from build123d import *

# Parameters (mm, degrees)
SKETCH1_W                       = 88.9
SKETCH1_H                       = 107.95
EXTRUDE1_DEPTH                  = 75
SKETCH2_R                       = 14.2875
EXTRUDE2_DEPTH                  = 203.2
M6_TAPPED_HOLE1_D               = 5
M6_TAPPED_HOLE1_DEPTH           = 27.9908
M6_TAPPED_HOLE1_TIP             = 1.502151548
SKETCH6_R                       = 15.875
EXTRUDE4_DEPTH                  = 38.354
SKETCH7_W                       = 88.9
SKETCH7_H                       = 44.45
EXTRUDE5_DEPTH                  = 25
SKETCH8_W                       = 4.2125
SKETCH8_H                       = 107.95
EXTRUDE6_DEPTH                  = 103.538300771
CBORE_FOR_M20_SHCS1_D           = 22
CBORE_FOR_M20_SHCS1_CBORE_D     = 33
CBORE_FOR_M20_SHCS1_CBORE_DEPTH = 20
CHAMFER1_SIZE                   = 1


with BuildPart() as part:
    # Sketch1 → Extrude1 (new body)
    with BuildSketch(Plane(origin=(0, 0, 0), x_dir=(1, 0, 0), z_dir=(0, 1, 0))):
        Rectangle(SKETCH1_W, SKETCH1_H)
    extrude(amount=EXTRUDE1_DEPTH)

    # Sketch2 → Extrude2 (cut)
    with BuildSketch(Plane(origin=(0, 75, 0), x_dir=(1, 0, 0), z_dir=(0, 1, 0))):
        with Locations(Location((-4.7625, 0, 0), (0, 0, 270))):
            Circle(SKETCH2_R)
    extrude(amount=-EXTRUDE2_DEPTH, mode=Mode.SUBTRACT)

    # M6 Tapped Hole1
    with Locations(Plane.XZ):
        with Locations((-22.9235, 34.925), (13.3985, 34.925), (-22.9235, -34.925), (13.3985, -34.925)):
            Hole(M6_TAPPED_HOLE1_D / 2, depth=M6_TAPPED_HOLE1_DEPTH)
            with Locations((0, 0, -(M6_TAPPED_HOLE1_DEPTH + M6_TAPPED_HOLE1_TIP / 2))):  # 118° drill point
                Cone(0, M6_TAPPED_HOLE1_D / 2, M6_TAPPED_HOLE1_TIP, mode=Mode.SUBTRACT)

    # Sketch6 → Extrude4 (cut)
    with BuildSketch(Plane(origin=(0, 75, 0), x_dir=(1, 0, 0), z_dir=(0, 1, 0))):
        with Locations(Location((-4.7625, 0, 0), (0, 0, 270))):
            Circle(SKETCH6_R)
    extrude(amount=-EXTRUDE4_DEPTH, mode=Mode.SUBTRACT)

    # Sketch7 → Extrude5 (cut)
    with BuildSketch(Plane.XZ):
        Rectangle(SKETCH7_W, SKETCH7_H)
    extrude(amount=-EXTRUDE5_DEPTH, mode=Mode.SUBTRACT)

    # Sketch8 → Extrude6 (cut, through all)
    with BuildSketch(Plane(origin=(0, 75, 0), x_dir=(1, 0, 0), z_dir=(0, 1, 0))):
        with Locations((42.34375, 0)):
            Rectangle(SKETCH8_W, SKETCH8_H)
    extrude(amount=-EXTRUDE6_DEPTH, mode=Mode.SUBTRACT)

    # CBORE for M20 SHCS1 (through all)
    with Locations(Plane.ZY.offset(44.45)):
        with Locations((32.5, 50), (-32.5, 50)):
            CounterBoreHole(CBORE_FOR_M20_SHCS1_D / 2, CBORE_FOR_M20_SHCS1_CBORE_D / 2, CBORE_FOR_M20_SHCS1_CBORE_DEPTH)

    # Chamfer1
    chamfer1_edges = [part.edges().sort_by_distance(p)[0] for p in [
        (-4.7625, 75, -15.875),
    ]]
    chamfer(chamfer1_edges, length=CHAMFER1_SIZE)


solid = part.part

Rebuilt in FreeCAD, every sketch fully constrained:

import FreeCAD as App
import Part
import Sketcher
from FreeCAD import Vector
Q = App.Units.Quantity


def edges_at(feature, points):
    """Names of the edges that pass closest to the given points."""
    edges = feature.Shape.Edges
    near = lambda p: min(range(len(edges)), key=lambda i: edges[i].distToShape(Part.Vertex(*p))[0])
    return sorted({f"Edge{near(p) + 1}" for p in points})

doc = App.newDocument("Part")
body = doc.addObject("PartDesign::Body", "Body")

sketch1 = body.newObject("Sketcher::SketchObject", "Sketch")
sketch1.AttachmentSupport = (doc.getObject("XZ_Plane"), [""])
sketch1.MapMode = "FlatFace"
sketch1.addGeometry([
    Part.LineSegment(Vector(-44, -54, 0), Vector(-44, 54, 0)),
    Part.LineSegment(Vector(-44, 54, 0), Vector(44, 54, 0)),
    Part.LineSegment(Vector(44, 54, 0), Vector(44, -54, 0)),
    Part.LineSegment(Vector(44, -54, 0), Vector(-44, -54, 0)),
], False)
sketch1.addConstraint([
    Sketcher.Constraint("Coincident", 0, 2, 1, 1),
    Sketcher.Constraint("Coincident", 1, 2, 2, 1),
    Sketcher.Constraint("Coincident", 2, 2, 3, 1),
    Sketcher.Constraint("Coincident", 3, 2, 0, 1),
    Sketcher.Constraint("Vertical", 0),
    Sketcher.Constraint("Horizontal", 1),
    Sketcher.Constraint("Vertical", 2),
    Sketcher.Constraint("Horizontal", 3),
    Sketcher.Constraint("Symmetric", 0, 2, 2, 2, -1, 1),
    Sketcher.Constraint("DistanceX", 1, 1, 1, 2, Q("3.5 in")),
    Sketcher.Constraint("DistanceY", 0, 1, 0, 2, Q("4.25 in")),
])
pad1 = body.newObject("PartDesign::Pad", "Pad")
pad1.Profile = sketch1
pad1.Length = 75
pad1.Reversed = True

sketch2 = body.newObject("Sketcher::SketchObject", "Sketch001")
sketch2.AttachmentSupport = (doc.getObject("XZ_Plane"), [""])
sketch2.MapMode = "FlatFace"
sketch2.AttachmentOffset = App.Placement(Vector(0, 0, -75), App.Rotation())
sketch2.addGeometry(Part.Circle(Vector(-5, 0, 0), Vector(0, 0, 1), 14), False)
sketch2.addConstraint([
    Sketcher.Constraint("PointOnObject", 0, 3, -1),
    Sketcher.Constraint("Diameter", 0, Q("1.125 in")),
    Sketcher.Constraint("DistanceX", 0, 3, -1, 1, Q("0.1875 in")),
])
pocket1 = body.newObject("PartDesign::Pocket", "Pocket")
pocket1.Profile = sketch2
pocket1.Length = Q("8 in")
pocket1.Reversed = True

sketch3 = body.newObject("Sketcher::SketchObject", "Sketch002")
sketch3.AttachmentSupport = (doc.getObject("XZ_Plane"), [""])
sketch3.MapMode = "FlatFace"
sketch3.addGeometry([
    Part.Circle(Vector(-22.9, 34.9, 0), Vector(0, 0, 1), 2.5),
    Part.Circle(Vector(13.4, 34.9, 0), Vector(0, 0, 1), 2.5),
    Part.Circle(Vector(-22.9, -34.9, 0), Vector(0, 0, 1), 2.5),
    Part.Circle(Vector(13.4, -34.9, 0), Vector(0, 0, 1), 2.5),
], False)
sketch3.addConstraint([
    Sketcher.Constraint("Equal", 0, 1),
    Sketcher.Constraint("Equal", 1, 2),
    Sketcher.Constraint("Equal", 2, 3),
    Sketcher.Constraint("Symmetric", 0, 3, 2, 3, -1),
    Sketcher.Constraint("Symmetric", 1, 3, 3, 3, -1),
    Sketcher.Constraint("Horizontal", 0, 3, 1, 3),
    Sketcher.Constraint("Diameter", 0, Q("5 mm")),
    Sketcher.Constraint("DistanceX", 0, 3, 1, 3, Q("1.43 in")),
    Sketcher.Constraint("DistanceY", 2, 3, 0, 3, Q("2.75 in")),
    Sketcher.Constraint("DistanceX", 0, 3, -1, 1, Q("0.9025 in")),
])
doc.recompute()
hole = body.newObject("PartDesign::Hole", "Hole")
hole.Profile = sketch3
hole.ThreadType = "None"
hole.Diameter = 5
hole.DepthType = "Dimension"
hole.Depth = Q("1.102 in")
hole.DrillPoint = "Angled"
hole.DrillPointAngle = 118

sketch4 = body.newObject("Sketcher::SketchObject", "Sketch003")
sketch4.AttachmentSupport = (doc.getObject("XZ_Plane"), [""])
sketch4.MapMode = "FlatFace"
sketch4.AttachmentOffset = App.Placement(Vector(0, 0, -75), App.Rotation())
sketch4.addGeometry(Part.Circle(Vector(-5, 0, 0), Vector(0, 0, 1), 16), False)
sketch4.addConstraint([
    Sketcher.Constraint("PointOnObject", 0, 3, -1),
    Sketcher.Constraint("Diameter", 0, Q("1.25 in")),
    Sketcher.Constraint("DistanceX", 0, 3, -1, 1, Q("0.1875 in")),
])
pocket2 = body.newObject("PartDesign::Pocket", "Pocket001")
pocket2.Profile = sketch4
pocket2.Length = Q("1.51 in")
pocket2.Reversed = True

sketch5 = body.newObject("Sketcher::SketchObject", "Sketch004")
sketch5.AttachmentSupport = (doc.getObject("XZ_Plane"), [""])
sketch5.MapMode = "FlatFace"
sketch5.addGeometry([
    Part.LineSegment(Vector(-44, 22, 0), Vector(-44, -22, 0)),
    Part.LineSegment(Vector(-44, -22, 0), Vector(44, -22, 0)),
    Part.LineSegment(Vector(44, -22, 0), Vector(44, 22, 0)),
    Part.LineSegment(Vector(44, 22, 0), Vector(-44, 22, 0)),
], False)
sketch5.addConstraint([
    Sketcher.Constraint("Coincident", 0, 2, 1, 1),
    Sketcher.Constraint("Coincident", 1, 2, 2, 1),
    Sketcher.Constraint("Coincident", 2, 2, 3, 1),
    Sketcher.Constraint("Coincident", 3, 2, 0, 1),
    Sketcher.Constraint("Vertical", 0),
    Sketcher.Constraint("Horizontal", 1),
    Sketcher.Constraint("Vertical", 2),
    Sketcher.Constraint("Horizontal", 3),
    Sketcher.Constraint("Symmetric", 0, 2, 2, 2, -1, 1),
    Sketcher.Constraint("DistanceX", 1, 1, 1, 2, Q("3.5 in")),
    Sketcher.Constraint("DistanceY", 0, 2, 0, 1, Q("1.75 in")),
])
pocket3 = body.newObject("PartDesign::Pocket", "Pocket002")
pocket3.Profile = sketch5
pocket3.Length = 25

sketch6 = body.newObject("Sketcher::SketchObject", "Sketch005")
sketch6.AttachmentSupport = (doc.getObject("XZ_Plane"), [""])
sketch6.MapMode = "FlatFace"
sketch6.AttachmentOffset = App.Placement(Vector(0, 0, -75), App.Rotation())
sketch6.addGeometry([
    Part.LineSegment(Vector(40.2, -54, 0), Vector(40.2, 54, 0)),
    Part.LineSegment(Vector(40.2, 54, 0), Vector(44.5, 54, 0)),
    Part.LineSegment(Vector(44.5, 54, 0), Vector(44.5, -54, 0)),
    Part.LineSegment(Vector(44.5, -54, 0), Vector(40.2, -54, 0)),
], False)
sketch6.addConstraint([
    Sketcher.Constraint("Coincident", 0, 2, 1, 1),
    Sketcher.Constraint("Coincident", 1, 2, 2, 1),
    Sketcher.Constraint("Coincident", 2, 2, 3, 1),
    Sketcher.Constraint("Coincident", 3, 2, 0, 1),
    Sketcher.Constraint("Vertical", 0),
    Sketcher.Constraint("Horizontal", 1),
    Sketcher.Constraint("Vertical", 2),
    Sketcher.Constraint("Horizontal", 3),
    Sketcher.Constraint("DistanceY", 0, 1, 0, 2, Q("4.25 in")),
    Sketcher.Constraint("DistanceX", -1, 1, 1, 2, Q("1.75 in")),
    Sketcher.Constraint("DistanceY", -1, 1, 0, 2, Q("2.125 in")),
    Sketcher.Constraint("DistanceX", 1, 1, 1, 2, Q("4.2125 mm")),
])
pocket4 = body.newObject("PartDesign::Pocket", "Pocket003")
pocket4.Profile = sketch6
pocket4.Type = "ThroughAll"
pocket4.Reversed = True

sketch7 = body.newObject("Sketcher::SketchObject", "Sketch006")
sketch7.AttachmentSupport = (doc.getObject("YZ_Plane"), [""])
sketch7.MapMode = "FlatFace"
sketch7.AttachmentOffset = App.Placement(Vector(0, 0, -1.75 * 25.4), App.Rotation())
sketch7.addGeometry([
    Part.Circle(Vector(50, 32, 0), Vector(0, 0, 1), 11),
    Part.Circle(Vector(50, -32, 0), Vector(0, 0, 1), 11),
], False)
sketch7.addConstraint([
    Sketcher.Constraint("Equal", 0, 1),
    Sketcher.Constraint("Symmetric", 0, 3, 1, 3, -1),
    Sketcher.Constraint("Diameter", 0, Q("22 mm")),
    Sketcher.Constraint("DistanceX", -1, 1, 0, 3, Q("50 mm")),
    Sketcher.Constraint("DistanceY", -1, 1, 0, 3, Q("32.5 mm")),
])
doc.recompute()
hole2 = body.newObject("PartDesign::Hole", "Hole001")
hole2.Profile = sketch7
hole2.ThreadType = "None"
hole2.Diameter = 22
hole2.DepthType = "ThroughAll"
hole2.HoleCutType = "Counterbore"
hole2.HoleCutDiameter = 33
hole2.HoleCutDepth = 20
hole2.Reversed = True
doc.recompute()

chamfer = body.newObject("PartDesign::Chamfer", "Chamfer")
chamfer.Base = (hole2, edges_at(hole2, [(-4.763, 75, -15.875)]))
chamfer.Size = 1

doc.recompute()
